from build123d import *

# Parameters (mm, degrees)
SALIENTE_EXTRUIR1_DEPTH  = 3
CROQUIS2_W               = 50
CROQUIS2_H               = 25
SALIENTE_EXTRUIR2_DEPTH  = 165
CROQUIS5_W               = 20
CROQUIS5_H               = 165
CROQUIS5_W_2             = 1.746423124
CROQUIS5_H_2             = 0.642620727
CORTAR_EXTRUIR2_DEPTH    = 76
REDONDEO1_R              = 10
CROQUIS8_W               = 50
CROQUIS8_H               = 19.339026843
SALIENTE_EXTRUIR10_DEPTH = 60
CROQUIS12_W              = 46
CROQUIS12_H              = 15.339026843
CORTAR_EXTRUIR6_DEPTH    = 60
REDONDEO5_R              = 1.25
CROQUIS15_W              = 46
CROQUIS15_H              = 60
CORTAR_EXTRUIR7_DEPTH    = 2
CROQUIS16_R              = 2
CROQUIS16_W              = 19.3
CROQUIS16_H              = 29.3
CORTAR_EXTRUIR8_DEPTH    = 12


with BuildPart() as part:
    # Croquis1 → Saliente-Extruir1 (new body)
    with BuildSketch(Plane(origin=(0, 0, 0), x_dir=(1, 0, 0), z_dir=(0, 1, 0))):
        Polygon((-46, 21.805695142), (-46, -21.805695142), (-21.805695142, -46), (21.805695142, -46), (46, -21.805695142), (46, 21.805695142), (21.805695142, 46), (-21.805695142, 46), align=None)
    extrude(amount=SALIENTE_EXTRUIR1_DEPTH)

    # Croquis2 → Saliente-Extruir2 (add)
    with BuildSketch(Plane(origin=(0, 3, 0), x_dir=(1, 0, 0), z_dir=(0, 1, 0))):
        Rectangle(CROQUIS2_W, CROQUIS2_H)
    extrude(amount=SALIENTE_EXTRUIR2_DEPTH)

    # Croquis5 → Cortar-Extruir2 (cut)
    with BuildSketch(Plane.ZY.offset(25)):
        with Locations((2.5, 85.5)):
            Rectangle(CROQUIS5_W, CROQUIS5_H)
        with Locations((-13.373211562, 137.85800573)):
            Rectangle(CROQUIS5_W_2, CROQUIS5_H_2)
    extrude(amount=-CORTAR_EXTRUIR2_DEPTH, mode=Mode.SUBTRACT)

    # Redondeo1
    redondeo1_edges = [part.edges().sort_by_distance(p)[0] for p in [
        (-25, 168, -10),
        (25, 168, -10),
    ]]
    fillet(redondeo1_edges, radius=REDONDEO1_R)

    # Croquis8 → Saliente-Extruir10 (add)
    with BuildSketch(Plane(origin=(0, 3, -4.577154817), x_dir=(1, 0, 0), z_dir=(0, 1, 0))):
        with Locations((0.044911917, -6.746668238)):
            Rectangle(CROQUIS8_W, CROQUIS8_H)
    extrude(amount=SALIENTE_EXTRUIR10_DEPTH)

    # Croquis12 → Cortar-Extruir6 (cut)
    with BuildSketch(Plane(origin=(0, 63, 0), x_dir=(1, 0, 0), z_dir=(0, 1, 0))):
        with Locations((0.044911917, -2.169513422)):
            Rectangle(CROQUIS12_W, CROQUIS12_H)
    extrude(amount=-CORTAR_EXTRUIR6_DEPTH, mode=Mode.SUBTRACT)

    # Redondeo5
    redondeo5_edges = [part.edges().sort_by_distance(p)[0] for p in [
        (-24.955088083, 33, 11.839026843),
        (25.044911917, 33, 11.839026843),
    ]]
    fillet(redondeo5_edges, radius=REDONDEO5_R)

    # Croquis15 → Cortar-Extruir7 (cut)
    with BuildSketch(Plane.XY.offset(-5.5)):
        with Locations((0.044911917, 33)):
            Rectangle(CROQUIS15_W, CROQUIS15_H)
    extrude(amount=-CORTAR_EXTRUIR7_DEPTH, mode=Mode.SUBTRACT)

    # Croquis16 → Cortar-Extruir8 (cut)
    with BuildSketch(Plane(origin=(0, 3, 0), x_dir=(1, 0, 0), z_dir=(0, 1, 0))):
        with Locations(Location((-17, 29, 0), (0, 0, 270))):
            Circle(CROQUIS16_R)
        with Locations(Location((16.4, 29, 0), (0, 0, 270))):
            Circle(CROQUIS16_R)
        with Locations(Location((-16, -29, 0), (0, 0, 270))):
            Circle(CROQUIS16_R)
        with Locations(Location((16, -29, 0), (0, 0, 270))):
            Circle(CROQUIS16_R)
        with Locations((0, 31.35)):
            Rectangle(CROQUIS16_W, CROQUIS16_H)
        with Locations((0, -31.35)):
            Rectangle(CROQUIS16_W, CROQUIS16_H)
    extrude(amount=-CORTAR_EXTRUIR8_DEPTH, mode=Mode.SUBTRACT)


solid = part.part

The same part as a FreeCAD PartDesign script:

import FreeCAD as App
import Part
import Sketcher


def edges_at(feature, points):
    """Names of the edges that pass closest to the given points."""
    edges = feature.Shape.Edges
    near = lambda p: min(range(len(edges)), key=lambda i: edges[i].distToShape(Part.Vertex(*p))[0])
    return sorted({f"Edge{near(p) + 1}" for p in points})


def add_polygon(sketch, points):
    """Adds a closed chain of lines whose ends are joined by coincident constraints."""
    first, n = sketch.GeometryCount, len(points)
    for a, b in zip(points, points[1:] + points[:1]):
        sketch.addGeometry(Part.LineSegment(App.Vector(*a, 0), App.Vector(*b, 0)), False)
    for i in range(n):
        sketch.addConstraint(Sketcher.Constraint("Coincident", first + i, 2, first + (i + 1) % n, 1))

doc = App.newDocument("Part")
body = doc.addObject("PartDesign::Body", "Body")

sketch1 = body.newObject("Sketcher::SketchObject", "Sketch")
sketch1.AttachmentSupport = (doc.getObject("XZ_Plane"), [""])
sketch1.MapMode = "FlatFace"
add_polygon(sketch1, [(-46, -22), (-46, 22), (-22, 46), (22, 46), (46, 22), (46, -22), (22, -46), (-22, -46)])
sketch1.addConstraint([
    Sketcher.Constraint("Vertical", 0),
    Sketcher.Constraint("Horizontal", 2),
    Sketcher.Constraint("Vertical", 4),
    Sketcher.Constraint("Horizontal", 6),
    Sketcher.Constraint("Symmetric", 0, 2, 4, 2, -1, 1),
    Sketcher.Constraint("Symmetric", 1, 2, 5, 2, -1, 1),
    Sketcher.Constraint("Perpendicular", 1, 3),
    Sketcher.Constraint("Perpendicular", 5, 7),
    Sketcher.Constraint("Horizontal", 0, 2, 3, 2),
    Sketcher.Constraint("Horizontal", 4, 2, 7, 2),
    Sketcher.Constraint("Vertical", 2, 2, 5, 2),
    Sketcher.Constraint("Equal", 6, 0),
    Sketcher.Constraint("DistanceX", 0, 2, -1, 1, 46.0),
    Sketcher.Constraint("DistanceX", 2, 1, 2, 2, 43.61139),
])
pad1 = body.newObject("PartDesign::Pad", "Pad")
pad1.Profile = sketch1
pad1.Length = 3
pad1.Reversed = True

sketch2 = body.newObject("Sketcher::SketchObject", "Sketch001")
sketch2.AttachmentSupport = (doc.getObject("XZ_Plane"), [""])
sketch2.MapMode = "FlatFace"
sketch2.AttachmentOffset = App.Placement(App.Vector(0, 0, -3), App.Rotation())
add_polygon(sketch2, [(-25, -12), (-25, 12), (25, 12), (25, -12)])
sketch2.addConstraint([
    Sketcher.Constraint("Vertical", 0),
    Sketcher.Constraint("Horizontal", 1),
    Sketcher.Constraint("Vertical", 2),
    Sketcher.Constraint("Horizontal", 3),
    Sketcher.Constraint("Symmetric", 0, 2, 2, 2, -1, 1),
    Sketcher.Constraint("DistanceX", 1, 1, 1, 2, 50.0),
    Sketcher.Constraint("DistanceY", 0, 1, 0, 2, 25.0),
])
pad2 = body.newObject("PartDesign::Pad", "Pad001")
pad2.Profile = sketch2
pad2.Length = 165
pad2.Reversed = True

sketch3 = body.newObject("Sketcher::SketchObject", "Sketch002")
sketch3.AttachmentSupport = (doc.getObject("YZ_Plane"), [""])
sketch3.MapMode = "FlatFace"
sketch3.AttachmentOffset = App.Placement(App.Vector(0, 0, -25), App.Rotation())
add_polygon(sketch3, [(168, -7.5), (3, -7.5), (3, 12.5), (168, 12.5)])
add_polygon(sketch3, [(138.2, -14.2), (137.5, -14.2), (137.5, -12.5), (138.2, -12.5)])
sketch3.addConstraint([
    Sketcher.Constraint("Horizontal", 0),
    Sketcher.Constraint("Vertical", 1),
    Sketcher.Constraint("Horizontal", 2),
    Sketcher.Constraint("Vertical", 3),
    Sketcher.Constraint("Horizontal", 4),
    Sketcher.Constraint("Vertical", 5),
    Sketcher.Constraint("Horizontal", 6),
    Sketcher.Constraint("Vertical", 7),
    Sketcher.Constraint("DistanceX", 0, 2, 0, 1, 165.0),
    Sketcher.Constraint("DistanceY", 1, 1, 1, 2, 20.0),
    Sketcher.Constraint("DistanceX", -1, 1, 0, 2, 3.0),
    Sketcher.Constraint("DistanceY", 5, 2, 3, 2, 5.0),
    Sketcher.Constraint("DistanceY", 0, 2, -1, 1, 7.5),
    Sketcher.Constraint("DistanceX", 4, 2, 4, 1, 0.642621),
    Sketcher.Constraint("DistanceY", 5, 1, 5, 2, 1.746423),
    Sketcher.Constraint("DistanceX", -1, 1, 4, 2, 137.536695),
])
pocket1 = body.newObject("PartDesign::Pocket", "Pocket")
pocket1.Profile = sketch3
pocket1.Length = 76
pocket1.Reversed = True
doc.recompute()

fillet = body.newObject("PartDesign::Fillet", "Fillet")
fillet.Base = (pocket1, edges_at(pocket1, [(-25, 168, -10), (25, 168, -10)]))
fillet.Radius = 10

sketch4 = body.newObject("Sketcher::SketchObject", "Sketch003")
sketch4.AttachmentSupport = (doc.getObject("XZ_Plane"), [""])
sketch4.MapMode = "FlatFace"
sketch4.AttachmentOffset = App.Placement(App.Vector(0, 0, -3), App.Rotation())
add_polygon(sketch4, [(-25, -8), (-25, 12), (25, 12), (25, -8)])
sketch4.addConstraint([
    Sketcher.Constraint("Vertical", 0),
    Sketcher.Constraint("Horizontal", 1),
    Sketcher.Constraint("Vertical", 2),
    Sketcher.Constraint("Horizontal", 3),
    Sketcher.Constraint("DistanceX", 1, 1, 1, 2, 50.0),
    Sketcher.Constraint("DistanceY", 2, 2, -1, 1, 7.5),
    Sketcher.Constraint("DistanceY", 0, 1, 0, 2, 19.339027),
    Sketcher.Constraint("DistanceX", 0, 2, -1, 1, 24.955088),
])
pad3 = body.newObject("PartDesign::Pad", "Pad002")
pad3.Profile = sketch4
pad3.Length = 60
pad3.Reversed = True

sketch5 = body.newObject("Sketcher::SketchObject", "Sketch004")
sketch5.AttachmentSupport = (doc.getObject("XZ_Plane"), [""])
sketch5.MapMode = "FlatFace"
sketch5.AttachmentOffset = App.Placement(App.Vector(0, 0, -63), App.Rotation())
add_polygon(sketch5, [(-23, -5), (-23, 10), (23, 10), (23, -5)])
sketch5.addConstraint([
    Sketcher.Constraint("Vertical", 0),
    Sketcher.Constraint("Horizontal", 1),
    Sketcher.Constraint("Vertical", 2),
    Sketcher.Constraint("Horizontal", 3),
    Sketcher.Constraint("DistanceX", 1, 1, 1, 2, 46.0),
    Sketcher.Constraint("DistanceY", 2, 2, -1, 1, 5.5),
    Sketcher.Constraint("DistanceY", 0, 1, 0, 2, 15.339027),
    Sketcher.Constraint("DistanceX", 0, 2, -1, 1, 22.955088),
])
pocket2 = body.newObject("PartDesign::Pocket", "Pocket001")
pocket2.Profile = sketch5
pocket2.Length = 60
pocket2.Reversed = True
doc.recompute()

fillet2 = body.newObject("PartDesign::Fillet", "Fillet001")
fillet2.Base = (pocket2, edges_at(pocket2, [(-24.955, 33, 11.839), (25.045, 33, 11.839)]))
fillet2.Radius = 1.25

sketch6 = body.newObject("Sketcher::SketchObject", "Sketch005")
sketch6.AttachmentSupport = (doc.getObject("XY_Plane"), [""])
sketch6.MapMode = "FlatFace"
sketch6.AttachmentOffset = App.Placement(App.Vector(0, 0, -5.5), App.Rotation())
add_polygon(sketch6, [(-23, 63), (-23, 3), (23, 3), (23, 63)])
sketch6.addConstraint([
    Sketcher.Constraint("Vertical", 0),
    Sketcher.Constraint("Horizontal", 1),
    Sketcher.Constraint("Vertical", 2),
    Sketcher.Constraint("Horizontal", 3),
    Sketcher.Constraint("DistanceX", 1, 1, 1, 2, 46.0),
    Sketcher.Constraint("DistanceY", 0, 2, 0, 1, 60.0),
    Sketcher.Constraint("DistanceY", -1, 1, 0, 2, 3.0),
    Sketcher.Constraint("DistanceX", 0, 2, -1, 1, 22.955088),
])
pocket3 = body.newObject("PartDesign::Pocket", "Pocket002")
pocket3.Profile = sketch6
pocket3.Length = 2

sketch7 = body.newObject("Sketcher::SketchObject", "Sketch006")
sketch7.AttachmentSupport = (doc.getObject("XZ_Plane"), [""])
sketch7.MapMode = "FlatFace"
sketch7.AttachmentOffset = App.Placement(App.Vector(0, 0, -3), App.Rotation())
sketch7.addGeometry(Part.Circle(App.Vector(-17, -29, 0), App.Vector(0, 0, 1), 2), False)
sketch7.addGeometry(Part.Circle(App.Vector(16.4, -29, 0), App.Vector(0, 0, 1), 2), False)
sketch7.addGeometry(Part.Circle(App.Vector(-16, 29, 0), App.Vector(0, 0, 1), 2), False)
sketch7.addGeometry(Part.Circle(App.Vector(16, 29, 0), App.Vector(0, 0, 1), 2), False)
add_polygon(sketch7, [(-9.7, -46), (-9.7, -16.7), (9.7, -16.7), (9.7, -46)])
add_polygon(sketch7, [(-9.7, 16.7), (-9.7, 46), (9.7, 46), (9.7, 16.7)])
sketch7.addConstraint([
    Sketcher.Constraint("Vertical", 4),
    Sketcher.Constraint("Horizontal", 5),
    Sketcher.Constraint("Vertical", 6),
    Sketcher.Constraint("Horizontal", 7),
    Sketcher.Constraint("Vertical", 8),
    Sketcher.Constraint("Horizontal", 9),
    Sketcher.Constraint("Vertical", 10),
    Sketcher.Constraint("Horizontal", 11),
    Sketcher.Constraint("Equal", 0, 1),
    Sketcher.Constraint("Equal", 1, 2),
    Sketcher.Constraint("Equal", 2, 3),
    Sketcher.Constraint("Symmetric", 6, 2, 8, 2, -1, 1),
    Sketcher.Constraint("Symmetric", 4, 2, 10, 2, -1, 1),
    Sketcher.Constraint("Symmetric", 2, 3, 3, 3, -2),
    Sketcher.Constraint("Horizontal", 0, 3, 1, 3),
    Sketcher.Constraint("Vertical", 7, 2, 8, 2),
    Sketcher.Constraint("Diameter", 0, 4.0),
    Sketcher.Constraint("DistanceX", 5, 1, 5, 2, 19.3),
    Sketcher.Constraint("DistanceY", 4, 1, 4, 2, 29.3),
    Sketcher.Constraint("DistanceX", 0, 3, -1, 1, 17.0),
    Sketcher.Constraint("DistanceY", 0, 3, -1, 1, 29.0),
    Sketcher.Constraint("DistanceX", 2, 3, -1, 1, 16.0),
    Sketcher.Constraint("DistanceY", -1, 1, 2, 3, 29.0),
    Sketcher.Constraint("DistanceY", 6, 2, -1, 1, 46.0),
    Sketcher.Constraint("DistanceX", -1, 1, 1, 3, 16.4),
])
pocket4 = body.newObject("PartDesign::Pocket", "Pocket003")
pocket4.Profile = sketch7
pocket4.Length = 12
pocket4.Reversed = True

doc.recompute()
